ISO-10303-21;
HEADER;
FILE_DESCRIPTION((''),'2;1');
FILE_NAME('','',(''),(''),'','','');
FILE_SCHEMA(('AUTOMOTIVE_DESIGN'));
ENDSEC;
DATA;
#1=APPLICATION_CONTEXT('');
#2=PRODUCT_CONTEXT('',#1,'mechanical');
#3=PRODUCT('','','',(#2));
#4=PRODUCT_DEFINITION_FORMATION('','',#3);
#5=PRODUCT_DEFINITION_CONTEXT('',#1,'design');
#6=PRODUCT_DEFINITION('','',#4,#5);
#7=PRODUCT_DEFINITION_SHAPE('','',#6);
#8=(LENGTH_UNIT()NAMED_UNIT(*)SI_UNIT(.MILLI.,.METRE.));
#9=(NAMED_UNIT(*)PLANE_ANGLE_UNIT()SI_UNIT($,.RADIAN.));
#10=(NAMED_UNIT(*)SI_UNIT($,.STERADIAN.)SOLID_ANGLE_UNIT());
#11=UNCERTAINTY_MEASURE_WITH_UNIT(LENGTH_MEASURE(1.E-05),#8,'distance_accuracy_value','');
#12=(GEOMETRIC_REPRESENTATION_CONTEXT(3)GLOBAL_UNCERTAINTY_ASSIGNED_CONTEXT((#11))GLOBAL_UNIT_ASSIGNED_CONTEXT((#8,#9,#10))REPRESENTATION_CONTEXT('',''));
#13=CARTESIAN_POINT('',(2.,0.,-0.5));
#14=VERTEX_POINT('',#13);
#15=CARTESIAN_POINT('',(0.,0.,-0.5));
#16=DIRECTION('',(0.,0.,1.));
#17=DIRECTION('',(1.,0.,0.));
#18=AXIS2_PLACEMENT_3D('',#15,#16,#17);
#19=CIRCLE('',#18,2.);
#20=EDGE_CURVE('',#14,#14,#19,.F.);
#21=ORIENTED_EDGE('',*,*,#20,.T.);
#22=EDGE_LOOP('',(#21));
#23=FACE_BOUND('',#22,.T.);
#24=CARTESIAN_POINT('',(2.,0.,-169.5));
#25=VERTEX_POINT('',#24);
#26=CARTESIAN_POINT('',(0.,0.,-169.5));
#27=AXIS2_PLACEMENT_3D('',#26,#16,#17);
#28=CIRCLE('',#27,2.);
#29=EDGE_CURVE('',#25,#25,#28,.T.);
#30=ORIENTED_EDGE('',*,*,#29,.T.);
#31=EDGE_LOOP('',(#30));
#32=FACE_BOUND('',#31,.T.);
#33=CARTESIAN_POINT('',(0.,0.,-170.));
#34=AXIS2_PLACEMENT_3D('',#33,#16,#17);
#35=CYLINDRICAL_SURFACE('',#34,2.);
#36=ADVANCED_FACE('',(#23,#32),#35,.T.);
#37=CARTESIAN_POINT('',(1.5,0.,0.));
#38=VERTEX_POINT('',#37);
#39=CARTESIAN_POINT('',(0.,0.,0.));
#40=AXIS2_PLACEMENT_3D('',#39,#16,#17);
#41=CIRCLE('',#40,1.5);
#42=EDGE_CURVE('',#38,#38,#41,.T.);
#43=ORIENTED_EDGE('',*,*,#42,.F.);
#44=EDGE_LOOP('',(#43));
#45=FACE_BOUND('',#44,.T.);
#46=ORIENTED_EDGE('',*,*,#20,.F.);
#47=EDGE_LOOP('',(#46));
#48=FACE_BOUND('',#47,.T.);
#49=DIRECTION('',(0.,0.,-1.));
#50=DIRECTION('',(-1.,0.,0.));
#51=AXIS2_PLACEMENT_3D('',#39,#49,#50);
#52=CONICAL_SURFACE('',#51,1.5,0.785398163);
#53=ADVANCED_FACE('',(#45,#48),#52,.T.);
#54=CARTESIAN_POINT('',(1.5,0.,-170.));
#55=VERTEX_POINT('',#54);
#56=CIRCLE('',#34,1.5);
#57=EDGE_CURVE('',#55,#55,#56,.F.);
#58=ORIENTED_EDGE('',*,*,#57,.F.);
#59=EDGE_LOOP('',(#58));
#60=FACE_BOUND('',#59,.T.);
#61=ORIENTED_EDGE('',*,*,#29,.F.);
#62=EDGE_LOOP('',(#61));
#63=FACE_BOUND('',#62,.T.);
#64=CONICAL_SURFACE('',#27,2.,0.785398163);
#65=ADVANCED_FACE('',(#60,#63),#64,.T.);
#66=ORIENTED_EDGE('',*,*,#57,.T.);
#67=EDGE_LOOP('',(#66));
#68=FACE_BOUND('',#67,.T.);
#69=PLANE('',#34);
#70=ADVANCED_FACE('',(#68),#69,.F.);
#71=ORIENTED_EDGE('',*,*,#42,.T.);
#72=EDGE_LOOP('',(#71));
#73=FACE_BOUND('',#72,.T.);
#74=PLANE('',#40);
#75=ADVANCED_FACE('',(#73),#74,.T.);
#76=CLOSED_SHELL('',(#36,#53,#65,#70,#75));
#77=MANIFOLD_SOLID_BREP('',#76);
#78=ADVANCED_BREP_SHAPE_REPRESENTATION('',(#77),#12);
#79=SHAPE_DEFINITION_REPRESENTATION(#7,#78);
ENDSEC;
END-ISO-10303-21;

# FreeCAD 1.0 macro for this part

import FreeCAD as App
import Part
import Sketcher


def edges_at(feature, points):
    """Names of the edges that pass closest to the given points."""
    edges = feature.Shape.Edges
    near = lambda p: min(range(len(edges)), key=lambda i: edges[i].distToShape(Part.Vertex(*p))[0])
    return sorted({f"Edge{near(p) + 1}" for p in points})

doc = App.newDocument("Part")
params = doc.addObject("Spreadsheet::Sheet", "Params")
for row, (alias, value) in enumerate([
    ("sketch1_diameter", "4 mm"),
    ("pad1_length", "170 mm"),
    ("chamfer_size", "0.5 mm"),
], start=1):
    params.set(f"A{row}", alias)
    params.set(f"B{row}", "=" + value)
    params.setAlias(f"B{row}", alias)

body = doc.addObject("PartDesign::Body", "Body")

# Sketch on XY plane
sketch1 = body.newObject("Sketcher::SketchObject", "Sketch")
sketch1.AttachmentSupport = (doc.getObject("XY_Plane"), [""])
sketch1.MapMode = "FlatFace"
sketch1.addGeometry(Part.Circle(App.Vector(0, 0, 0), App.Vector(0, 0, 1), 2), False)
sketch1.addConstraint(Sketcher.Constraint("Coincident", 0, 3, -1, 1))
sketch1.addConstraint(Sketcher.Constraint("Diameter", 0, 4.0))
sketch1.setExpression("Constraints[1]", "Params.sketch1_diameter")
pad1 = body.newObject("PartDesign::Pad", "Pad")
pad1.Profile = sketch1
pad1.setExpression("Length", "Params.pad1_length")
pad1.Reversed = True
doc.recompute()

chamfer = body.newObject("PartDesign::Chamfer", "Chamfer")
chamfer.Base = (pad1, edges_at(pad1, [(-2, 0, 0), (-2, 0, -170)]))
chamfer.setExpression("Size", "Params.chamfer_size")

doc.recompute()
